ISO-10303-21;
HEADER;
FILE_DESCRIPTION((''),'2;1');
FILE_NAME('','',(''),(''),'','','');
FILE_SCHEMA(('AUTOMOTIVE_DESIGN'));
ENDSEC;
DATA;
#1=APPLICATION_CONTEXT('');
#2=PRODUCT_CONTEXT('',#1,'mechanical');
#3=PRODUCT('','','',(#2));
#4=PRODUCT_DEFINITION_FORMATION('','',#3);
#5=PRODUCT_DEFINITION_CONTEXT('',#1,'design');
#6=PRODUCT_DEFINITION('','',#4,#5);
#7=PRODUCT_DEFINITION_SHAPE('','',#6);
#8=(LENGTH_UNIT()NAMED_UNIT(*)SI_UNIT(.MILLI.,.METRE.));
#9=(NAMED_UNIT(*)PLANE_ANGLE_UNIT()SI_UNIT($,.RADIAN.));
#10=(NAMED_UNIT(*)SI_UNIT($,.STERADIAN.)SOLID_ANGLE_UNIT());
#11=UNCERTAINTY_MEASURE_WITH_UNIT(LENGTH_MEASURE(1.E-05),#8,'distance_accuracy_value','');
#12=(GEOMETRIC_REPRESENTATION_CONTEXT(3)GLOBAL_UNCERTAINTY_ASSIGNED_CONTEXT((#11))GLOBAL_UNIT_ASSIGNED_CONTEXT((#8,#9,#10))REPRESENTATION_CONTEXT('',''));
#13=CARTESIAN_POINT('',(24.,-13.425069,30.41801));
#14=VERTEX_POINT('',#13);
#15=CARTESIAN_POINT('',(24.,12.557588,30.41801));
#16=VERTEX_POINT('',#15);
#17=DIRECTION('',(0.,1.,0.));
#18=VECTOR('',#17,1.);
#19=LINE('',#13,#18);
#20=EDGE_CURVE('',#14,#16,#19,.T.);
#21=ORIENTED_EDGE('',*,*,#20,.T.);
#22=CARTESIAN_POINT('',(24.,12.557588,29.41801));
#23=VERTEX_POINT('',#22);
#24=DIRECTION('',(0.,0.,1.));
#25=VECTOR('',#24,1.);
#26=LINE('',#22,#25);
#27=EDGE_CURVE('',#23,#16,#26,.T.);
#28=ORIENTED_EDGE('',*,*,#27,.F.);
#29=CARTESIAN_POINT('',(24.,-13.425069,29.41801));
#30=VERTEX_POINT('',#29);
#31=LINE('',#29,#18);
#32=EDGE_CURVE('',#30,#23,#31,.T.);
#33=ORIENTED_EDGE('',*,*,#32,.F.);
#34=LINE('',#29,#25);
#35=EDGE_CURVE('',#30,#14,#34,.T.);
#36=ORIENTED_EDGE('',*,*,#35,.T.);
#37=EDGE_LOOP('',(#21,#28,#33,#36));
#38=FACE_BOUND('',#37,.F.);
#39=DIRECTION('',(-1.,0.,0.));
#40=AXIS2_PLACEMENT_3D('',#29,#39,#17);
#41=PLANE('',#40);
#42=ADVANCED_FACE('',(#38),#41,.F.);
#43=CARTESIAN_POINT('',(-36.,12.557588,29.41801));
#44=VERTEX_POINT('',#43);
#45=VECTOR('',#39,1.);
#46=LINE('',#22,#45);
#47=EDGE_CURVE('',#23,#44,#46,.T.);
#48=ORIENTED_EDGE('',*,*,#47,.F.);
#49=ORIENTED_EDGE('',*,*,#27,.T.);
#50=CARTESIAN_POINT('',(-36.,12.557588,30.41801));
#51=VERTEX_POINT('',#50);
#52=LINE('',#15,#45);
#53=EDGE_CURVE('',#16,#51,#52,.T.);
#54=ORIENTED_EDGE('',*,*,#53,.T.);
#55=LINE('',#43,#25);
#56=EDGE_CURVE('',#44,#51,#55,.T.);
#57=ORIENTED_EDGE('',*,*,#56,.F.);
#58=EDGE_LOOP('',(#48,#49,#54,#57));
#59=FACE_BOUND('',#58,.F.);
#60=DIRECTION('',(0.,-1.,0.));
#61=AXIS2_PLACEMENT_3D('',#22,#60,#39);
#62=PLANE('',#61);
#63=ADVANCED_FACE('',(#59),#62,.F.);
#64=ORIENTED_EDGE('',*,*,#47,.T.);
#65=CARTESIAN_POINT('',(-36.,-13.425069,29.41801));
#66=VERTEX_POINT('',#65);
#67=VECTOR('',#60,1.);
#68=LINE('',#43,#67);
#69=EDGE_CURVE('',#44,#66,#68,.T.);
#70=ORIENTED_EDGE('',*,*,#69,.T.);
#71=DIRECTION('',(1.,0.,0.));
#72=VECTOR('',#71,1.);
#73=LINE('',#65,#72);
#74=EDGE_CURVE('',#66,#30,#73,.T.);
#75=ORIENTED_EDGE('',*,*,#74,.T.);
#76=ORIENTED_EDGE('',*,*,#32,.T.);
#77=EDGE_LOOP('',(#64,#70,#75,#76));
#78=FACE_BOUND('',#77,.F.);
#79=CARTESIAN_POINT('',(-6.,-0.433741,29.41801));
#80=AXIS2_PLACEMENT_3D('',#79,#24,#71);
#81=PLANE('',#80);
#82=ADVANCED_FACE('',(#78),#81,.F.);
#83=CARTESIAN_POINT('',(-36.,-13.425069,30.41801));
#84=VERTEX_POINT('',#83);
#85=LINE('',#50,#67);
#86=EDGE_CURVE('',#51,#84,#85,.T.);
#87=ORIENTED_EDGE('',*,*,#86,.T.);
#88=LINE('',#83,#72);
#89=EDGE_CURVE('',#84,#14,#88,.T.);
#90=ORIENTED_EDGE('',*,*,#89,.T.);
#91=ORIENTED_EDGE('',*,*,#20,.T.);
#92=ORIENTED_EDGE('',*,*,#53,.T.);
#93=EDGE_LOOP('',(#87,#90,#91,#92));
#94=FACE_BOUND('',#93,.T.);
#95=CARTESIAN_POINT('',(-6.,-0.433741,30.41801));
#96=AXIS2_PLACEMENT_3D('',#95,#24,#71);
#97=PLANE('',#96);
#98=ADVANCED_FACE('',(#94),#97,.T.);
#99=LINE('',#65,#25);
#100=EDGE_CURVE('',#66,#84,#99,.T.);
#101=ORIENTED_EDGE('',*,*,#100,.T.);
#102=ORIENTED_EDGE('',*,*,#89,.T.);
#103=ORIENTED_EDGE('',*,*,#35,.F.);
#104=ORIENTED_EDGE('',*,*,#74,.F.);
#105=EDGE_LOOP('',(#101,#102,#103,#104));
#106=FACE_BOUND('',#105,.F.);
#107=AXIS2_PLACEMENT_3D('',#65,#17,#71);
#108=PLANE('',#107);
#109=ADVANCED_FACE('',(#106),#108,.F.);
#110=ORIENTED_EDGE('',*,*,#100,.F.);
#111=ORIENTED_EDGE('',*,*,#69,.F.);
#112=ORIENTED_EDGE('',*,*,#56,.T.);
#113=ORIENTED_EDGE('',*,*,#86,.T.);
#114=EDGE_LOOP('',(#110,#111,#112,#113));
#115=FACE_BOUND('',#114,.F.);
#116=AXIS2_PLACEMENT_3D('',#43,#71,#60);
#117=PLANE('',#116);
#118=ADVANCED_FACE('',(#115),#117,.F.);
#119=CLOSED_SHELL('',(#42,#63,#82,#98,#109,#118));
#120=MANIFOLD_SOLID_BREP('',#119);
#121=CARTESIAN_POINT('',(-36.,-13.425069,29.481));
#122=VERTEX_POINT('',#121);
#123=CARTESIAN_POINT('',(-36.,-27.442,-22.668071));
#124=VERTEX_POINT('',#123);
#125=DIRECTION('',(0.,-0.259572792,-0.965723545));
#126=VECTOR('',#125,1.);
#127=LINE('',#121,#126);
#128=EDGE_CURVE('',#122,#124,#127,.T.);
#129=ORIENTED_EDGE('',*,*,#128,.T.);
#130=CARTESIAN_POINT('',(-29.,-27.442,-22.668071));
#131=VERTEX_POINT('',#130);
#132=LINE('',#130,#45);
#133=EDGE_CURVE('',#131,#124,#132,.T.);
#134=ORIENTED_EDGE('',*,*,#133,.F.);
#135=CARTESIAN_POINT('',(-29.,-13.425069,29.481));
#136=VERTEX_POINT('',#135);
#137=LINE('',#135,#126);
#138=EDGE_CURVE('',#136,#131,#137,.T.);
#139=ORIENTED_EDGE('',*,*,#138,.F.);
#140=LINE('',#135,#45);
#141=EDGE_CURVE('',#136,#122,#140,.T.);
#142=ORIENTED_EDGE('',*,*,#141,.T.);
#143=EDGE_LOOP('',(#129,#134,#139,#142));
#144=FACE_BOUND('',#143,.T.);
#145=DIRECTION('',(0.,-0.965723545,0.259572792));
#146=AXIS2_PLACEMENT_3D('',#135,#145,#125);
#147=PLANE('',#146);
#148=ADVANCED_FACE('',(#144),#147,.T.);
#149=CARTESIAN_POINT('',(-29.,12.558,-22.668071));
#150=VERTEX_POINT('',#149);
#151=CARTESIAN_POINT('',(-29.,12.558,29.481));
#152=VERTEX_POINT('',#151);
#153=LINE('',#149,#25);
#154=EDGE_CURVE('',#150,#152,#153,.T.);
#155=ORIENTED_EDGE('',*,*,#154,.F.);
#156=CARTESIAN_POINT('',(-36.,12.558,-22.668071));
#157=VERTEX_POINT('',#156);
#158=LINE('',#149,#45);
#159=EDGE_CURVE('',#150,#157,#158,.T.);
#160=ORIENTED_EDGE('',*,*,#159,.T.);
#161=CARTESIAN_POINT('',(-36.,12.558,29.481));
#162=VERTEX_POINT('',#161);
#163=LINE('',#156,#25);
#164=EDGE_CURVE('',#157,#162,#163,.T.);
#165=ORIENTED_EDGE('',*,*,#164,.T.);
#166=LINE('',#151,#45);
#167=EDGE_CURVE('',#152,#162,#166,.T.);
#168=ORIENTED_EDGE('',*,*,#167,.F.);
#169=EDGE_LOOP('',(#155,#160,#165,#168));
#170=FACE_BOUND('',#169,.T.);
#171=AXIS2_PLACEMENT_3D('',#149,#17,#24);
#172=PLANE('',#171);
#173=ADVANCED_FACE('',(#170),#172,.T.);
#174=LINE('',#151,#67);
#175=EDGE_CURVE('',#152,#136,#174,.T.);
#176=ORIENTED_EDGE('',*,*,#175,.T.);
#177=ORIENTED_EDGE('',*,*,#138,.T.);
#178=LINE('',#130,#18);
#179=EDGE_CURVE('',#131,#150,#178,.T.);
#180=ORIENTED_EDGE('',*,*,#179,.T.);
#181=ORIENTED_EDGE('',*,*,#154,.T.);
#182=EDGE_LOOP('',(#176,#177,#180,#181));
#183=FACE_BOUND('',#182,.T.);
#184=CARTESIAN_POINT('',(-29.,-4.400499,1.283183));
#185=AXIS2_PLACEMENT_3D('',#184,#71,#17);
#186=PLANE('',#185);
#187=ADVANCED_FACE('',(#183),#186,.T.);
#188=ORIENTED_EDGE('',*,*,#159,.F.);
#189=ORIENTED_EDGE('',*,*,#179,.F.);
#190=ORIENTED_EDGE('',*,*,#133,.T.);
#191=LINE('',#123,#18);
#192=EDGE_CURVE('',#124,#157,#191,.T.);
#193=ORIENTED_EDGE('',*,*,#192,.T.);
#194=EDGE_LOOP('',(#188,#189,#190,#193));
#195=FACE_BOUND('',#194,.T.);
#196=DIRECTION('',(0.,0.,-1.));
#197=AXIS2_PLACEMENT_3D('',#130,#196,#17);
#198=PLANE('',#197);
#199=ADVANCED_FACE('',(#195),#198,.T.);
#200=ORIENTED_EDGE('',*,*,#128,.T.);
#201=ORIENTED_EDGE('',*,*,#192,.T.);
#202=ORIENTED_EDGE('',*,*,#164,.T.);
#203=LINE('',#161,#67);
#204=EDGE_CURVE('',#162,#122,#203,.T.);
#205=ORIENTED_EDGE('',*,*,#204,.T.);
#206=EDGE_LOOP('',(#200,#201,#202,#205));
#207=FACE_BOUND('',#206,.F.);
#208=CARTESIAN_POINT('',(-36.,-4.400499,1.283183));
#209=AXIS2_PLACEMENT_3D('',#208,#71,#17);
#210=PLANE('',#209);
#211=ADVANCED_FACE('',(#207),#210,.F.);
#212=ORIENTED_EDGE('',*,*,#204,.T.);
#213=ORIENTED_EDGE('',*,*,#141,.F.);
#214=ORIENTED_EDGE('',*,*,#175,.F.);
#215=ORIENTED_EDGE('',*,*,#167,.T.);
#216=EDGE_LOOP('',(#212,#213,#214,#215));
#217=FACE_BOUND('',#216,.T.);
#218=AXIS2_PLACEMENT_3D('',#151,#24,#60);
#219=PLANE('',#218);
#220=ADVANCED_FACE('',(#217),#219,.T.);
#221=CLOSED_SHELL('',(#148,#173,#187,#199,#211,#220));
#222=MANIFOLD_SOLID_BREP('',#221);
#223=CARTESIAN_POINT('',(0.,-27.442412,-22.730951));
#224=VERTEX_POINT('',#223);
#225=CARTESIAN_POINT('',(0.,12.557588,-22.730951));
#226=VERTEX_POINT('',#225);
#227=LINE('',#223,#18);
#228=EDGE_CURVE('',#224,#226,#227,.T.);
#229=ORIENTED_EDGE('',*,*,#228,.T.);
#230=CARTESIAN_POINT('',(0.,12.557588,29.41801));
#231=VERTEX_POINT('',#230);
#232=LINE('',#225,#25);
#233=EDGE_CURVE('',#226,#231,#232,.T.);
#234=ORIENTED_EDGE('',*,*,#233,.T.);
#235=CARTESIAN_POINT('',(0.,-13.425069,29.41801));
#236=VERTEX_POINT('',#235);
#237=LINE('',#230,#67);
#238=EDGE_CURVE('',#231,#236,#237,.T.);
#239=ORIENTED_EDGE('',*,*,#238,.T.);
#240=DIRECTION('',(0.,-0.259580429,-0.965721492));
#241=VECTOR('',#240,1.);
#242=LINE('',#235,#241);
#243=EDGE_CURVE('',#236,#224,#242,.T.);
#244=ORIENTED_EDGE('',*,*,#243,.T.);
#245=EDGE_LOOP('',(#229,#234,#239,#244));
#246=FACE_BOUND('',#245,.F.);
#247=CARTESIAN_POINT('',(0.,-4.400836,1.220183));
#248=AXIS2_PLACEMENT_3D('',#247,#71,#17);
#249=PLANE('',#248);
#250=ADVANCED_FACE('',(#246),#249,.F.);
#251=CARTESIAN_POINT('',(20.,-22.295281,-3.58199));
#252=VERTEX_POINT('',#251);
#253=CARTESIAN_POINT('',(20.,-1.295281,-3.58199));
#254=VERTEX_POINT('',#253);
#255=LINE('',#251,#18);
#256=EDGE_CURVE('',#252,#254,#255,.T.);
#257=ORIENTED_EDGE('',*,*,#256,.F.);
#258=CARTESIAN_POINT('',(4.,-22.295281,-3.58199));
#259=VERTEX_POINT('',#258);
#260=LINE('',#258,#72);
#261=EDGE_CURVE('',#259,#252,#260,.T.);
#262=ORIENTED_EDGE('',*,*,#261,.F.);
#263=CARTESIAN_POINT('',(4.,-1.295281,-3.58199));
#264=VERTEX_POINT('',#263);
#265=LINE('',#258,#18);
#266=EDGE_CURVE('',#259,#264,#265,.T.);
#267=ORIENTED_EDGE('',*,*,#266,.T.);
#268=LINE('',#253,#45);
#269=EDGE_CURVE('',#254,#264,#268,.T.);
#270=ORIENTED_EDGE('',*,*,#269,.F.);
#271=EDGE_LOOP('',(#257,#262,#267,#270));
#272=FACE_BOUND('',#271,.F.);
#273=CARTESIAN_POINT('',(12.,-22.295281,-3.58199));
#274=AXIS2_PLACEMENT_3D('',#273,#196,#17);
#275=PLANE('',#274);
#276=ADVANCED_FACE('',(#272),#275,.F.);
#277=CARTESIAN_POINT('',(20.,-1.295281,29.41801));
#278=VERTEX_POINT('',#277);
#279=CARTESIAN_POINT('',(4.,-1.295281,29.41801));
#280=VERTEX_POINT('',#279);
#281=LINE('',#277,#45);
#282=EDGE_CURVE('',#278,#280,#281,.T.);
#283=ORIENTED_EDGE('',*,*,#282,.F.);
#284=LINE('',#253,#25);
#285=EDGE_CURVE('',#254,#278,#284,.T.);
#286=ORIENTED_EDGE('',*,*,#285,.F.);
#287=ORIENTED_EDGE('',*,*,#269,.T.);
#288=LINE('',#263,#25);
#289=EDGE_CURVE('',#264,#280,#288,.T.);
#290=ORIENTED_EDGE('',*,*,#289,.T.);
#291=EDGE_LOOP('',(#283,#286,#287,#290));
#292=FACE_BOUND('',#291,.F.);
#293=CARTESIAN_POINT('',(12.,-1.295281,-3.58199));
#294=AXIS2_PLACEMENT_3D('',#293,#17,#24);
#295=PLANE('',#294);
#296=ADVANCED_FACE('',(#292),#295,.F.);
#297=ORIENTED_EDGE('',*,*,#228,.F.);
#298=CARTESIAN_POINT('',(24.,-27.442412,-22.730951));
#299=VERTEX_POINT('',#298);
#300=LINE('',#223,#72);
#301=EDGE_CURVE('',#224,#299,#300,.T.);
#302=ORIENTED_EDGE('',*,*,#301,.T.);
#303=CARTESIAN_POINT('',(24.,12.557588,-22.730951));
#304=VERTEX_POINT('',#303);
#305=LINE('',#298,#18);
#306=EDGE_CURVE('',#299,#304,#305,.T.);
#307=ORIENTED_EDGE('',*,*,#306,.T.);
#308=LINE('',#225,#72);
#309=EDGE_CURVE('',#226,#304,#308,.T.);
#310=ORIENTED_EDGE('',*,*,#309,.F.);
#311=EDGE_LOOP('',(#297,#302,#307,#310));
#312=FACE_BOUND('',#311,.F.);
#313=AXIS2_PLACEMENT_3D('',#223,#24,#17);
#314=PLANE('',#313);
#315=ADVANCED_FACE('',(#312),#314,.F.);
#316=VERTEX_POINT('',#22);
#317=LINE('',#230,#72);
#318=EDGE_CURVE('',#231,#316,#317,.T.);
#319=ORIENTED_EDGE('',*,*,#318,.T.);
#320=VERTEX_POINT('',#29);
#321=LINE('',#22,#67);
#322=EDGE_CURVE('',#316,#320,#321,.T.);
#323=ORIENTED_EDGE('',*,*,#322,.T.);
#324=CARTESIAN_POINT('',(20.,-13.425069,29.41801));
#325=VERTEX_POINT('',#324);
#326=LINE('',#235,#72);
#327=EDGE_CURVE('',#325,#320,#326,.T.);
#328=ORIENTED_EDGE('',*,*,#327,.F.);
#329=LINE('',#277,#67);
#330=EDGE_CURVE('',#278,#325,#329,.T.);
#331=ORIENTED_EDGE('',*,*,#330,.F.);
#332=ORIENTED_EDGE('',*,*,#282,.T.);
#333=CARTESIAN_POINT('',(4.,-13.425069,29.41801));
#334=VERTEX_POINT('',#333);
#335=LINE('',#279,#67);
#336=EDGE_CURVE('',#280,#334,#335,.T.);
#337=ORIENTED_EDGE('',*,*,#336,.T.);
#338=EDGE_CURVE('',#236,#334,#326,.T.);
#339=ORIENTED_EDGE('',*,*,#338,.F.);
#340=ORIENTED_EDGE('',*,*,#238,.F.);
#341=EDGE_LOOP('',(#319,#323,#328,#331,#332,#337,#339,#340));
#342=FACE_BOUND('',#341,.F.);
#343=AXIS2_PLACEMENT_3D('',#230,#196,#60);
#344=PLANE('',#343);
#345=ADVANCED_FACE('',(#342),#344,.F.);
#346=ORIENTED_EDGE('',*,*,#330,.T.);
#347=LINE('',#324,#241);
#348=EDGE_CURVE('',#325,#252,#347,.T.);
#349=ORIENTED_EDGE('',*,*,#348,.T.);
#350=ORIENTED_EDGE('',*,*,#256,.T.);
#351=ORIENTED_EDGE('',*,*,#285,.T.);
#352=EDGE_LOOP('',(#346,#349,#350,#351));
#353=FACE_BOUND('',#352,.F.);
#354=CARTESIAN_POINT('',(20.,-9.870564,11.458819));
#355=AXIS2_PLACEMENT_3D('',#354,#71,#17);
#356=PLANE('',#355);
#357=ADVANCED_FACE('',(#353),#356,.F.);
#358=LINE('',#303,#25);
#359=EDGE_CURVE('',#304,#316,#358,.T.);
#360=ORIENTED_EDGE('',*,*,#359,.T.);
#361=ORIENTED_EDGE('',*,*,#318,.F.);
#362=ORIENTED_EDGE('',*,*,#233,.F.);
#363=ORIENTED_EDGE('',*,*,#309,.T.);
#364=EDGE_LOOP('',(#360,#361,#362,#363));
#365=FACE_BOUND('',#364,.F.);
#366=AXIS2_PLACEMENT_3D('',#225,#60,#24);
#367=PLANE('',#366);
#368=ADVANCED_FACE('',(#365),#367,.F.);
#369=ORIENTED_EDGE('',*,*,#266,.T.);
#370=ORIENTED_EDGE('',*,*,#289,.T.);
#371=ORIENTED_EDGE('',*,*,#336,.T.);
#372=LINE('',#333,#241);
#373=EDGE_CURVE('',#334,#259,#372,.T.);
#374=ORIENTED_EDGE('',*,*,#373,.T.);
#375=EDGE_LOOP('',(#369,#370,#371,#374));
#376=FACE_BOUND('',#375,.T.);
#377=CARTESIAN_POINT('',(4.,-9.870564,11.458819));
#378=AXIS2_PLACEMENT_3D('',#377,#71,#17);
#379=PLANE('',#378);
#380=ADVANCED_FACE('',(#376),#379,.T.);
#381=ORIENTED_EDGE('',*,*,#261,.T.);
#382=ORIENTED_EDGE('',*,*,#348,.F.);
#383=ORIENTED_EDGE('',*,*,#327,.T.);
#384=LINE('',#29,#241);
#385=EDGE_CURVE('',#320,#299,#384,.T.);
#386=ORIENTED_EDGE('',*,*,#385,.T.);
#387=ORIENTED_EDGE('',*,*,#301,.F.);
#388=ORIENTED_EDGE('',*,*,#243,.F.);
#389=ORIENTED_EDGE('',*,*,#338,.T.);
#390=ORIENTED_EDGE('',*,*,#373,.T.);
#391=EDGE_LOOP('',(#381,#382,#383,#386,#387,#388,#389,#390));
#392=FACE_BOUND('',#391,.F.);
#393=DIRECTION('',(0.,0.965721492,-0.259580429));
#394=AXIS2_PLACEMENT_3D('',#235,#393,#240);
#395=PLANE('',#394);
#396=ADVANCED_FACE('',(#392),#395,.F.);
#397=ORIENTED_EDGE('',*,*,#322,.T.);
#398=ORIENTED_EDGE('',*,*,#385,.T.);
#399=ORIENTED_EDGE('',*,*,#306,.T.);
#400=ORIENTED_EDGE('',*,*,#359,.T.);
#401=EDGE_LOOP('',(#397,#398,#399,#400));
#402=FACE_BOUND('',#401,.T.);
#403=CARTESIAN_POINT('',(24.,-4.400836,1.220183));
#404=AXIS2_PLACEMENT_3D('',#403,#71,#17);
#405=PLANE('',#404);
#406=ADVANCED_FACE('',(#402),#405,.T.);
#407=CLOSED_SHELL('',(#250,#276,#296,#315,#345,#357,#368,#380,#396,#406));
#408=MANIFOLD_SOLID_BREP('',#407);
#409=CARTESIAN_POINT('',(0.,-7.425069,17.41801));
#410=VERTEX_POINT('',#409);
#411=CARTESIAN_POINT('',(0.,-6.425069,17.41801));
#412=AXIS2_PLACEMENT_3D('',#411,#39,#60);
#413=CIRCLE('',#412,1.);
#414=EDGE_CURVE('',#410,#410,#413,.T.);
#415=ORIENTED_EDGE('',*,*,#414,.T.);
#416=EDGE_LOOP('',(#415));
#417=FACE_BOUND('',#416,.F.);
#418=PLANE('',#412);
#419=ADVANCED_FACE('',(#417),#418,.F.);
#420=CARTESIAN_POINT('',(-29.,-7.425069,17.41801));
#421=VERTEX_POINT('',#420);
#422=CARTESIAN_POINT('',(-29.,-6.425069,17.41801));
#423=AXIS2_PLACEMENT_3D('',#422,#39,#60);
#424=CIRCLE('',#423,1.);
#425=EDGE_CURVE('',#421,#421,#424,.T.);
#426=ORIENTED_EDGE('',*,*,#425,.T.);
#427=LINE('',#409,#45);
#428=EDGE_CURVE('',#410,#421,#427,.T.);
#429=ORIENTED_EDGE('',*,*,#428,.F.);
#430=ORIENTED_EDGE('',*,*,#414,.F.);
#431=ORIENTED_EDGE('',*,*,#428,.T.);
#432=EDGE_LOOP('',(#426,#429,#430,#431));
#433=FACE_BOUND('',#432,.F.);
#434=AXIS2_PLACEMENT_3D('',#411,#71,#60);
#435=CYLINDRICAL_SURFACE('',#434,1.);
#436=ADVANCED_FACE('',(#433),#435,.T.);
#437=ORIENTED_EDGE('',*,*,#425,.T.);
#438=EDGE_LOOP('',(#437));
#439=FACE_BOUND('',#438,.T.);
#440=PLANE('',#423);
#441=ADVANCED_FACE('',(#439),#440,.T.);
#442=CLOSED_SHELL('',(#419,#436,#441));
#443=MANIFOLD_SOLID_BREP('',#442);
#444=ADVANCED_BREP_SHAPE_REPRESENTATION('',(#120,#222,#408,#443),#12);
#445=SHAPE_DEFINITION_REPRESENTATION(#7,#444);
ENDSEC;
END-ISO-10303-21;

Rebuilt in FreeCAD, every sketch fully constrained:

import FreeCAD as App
import Part
import Sketcher


def add_polygon(sketch, points):
    """Adds a closed chain of lines whose ends are joined by coincident constraints."""
    first, n = sketch.GeometryCount, len(points)
    for a, b in zip(points, points[1:] + points[:1]):
        sketch.addGeometry(Part.LineSegment(App.Vector(*a, 0), App.Vector(*b, 0)), False)
    for i in range(n):
        sketch.addConstraint(Sketcher.Constraint("Coincident", first + i, 2, first + (i + 1) % n, 1))

doc = App.newDocument("Part")
body = doc.addObject("PartDesign::Body", "Body")

# Sketch on YZ plane
sketch1 = body.newObject("Sketcher::SketchObject", "Sketch")
sketch1.AttachmentSupport = (doc.getObject("YZ_Plane"), [""])
sketch1.MapMode = "FlatFace"
add_polygon(sketch1, [(12.557588, -22.730951), (12.557588, 29.41801), (-13.425069, 29.41801), (-27.442412, -22.730951)])  # lines 0-3
sketch1.addConstraint([
    Sketcher.Constraint("Vertical", 0),
    Sketcher.Constraint("Horizontal", 1),
    Sketcher.Constraint("Horizontal", 3),
    Sketcher.Constraint("DistanceX", 3, 1, 3, 2, 40.0),
    Sketcher.Constraint("Distance", 2, 54.0),
    Sketcher.Constraint("DistanceY", 0, 1, 0, 2, 52.148961),
    Sketcher.Constraint("DistanceY", -1, 1, 0, 2, 29.41801),
    Sketcher.Constraint("DistanceX", 1, 2, -1, 1, 13.425069),
])
pad1 = body.newObject("PartDesign::Pad", "Pad")
pad1.Profile = sketch1
pad1.Length = 24

# Sketch on YZ plane
sketch2 = body.newObject("Sketcher::SketchObject", "Sketch001")
sketch2.AttachmentSupport = (doc.getObject("YZ_Plane"), [""])
sketch2.MapMode = "FlatFace"
sketch2.AttachmentOffset = App.Placement(App.Vector(0, 0, 12), App.Rotation())
add_polygon(sketch2, [(-1.295281, 29.41801), (-13.425069, 29.41801), (-22.295281, -3.58199), (-1.295281, -3.58199)])  # lines 0-3
sketch2.addConstraint([
    Sketcher.Constraint("Horizontal", 0),
    Sketcher.Constraint("Horizontal", 2),
    Sketcher.Constraint("Vertical", 3),
    Sketcher.Constraint("DistanceX", 2, 1, 2, 2, 21.0),
    Sketcher.Constraint("DistanceY", 3, 1, 3, 2, 33.0),
    Sketcher.Constraint("DistanceX", 0, 2, 0, 1, 12.129788),
    Sketcher.Constraint("DistanceX", 0, 2, -1, 1, 13.425069),
    Sketcher.Constraint("DistanceY", -1, 1, 0, 2, 29.41801),
])
pocket1 = body.newObject("PartDesign::Pocket", "Pocket")
pocket1.Profile = sketch2
pocket1.Length = 16
pocket1.Midplane = True
body2 = doc.addObject("PartDesign::Body", "Body001")

# Sketch on YZ plane
sketch3 = body2.newObject("Sketcher::SketchObject", "Sketch002")
sketch3.AttachmentSupport = (doc.getObject("YZ_Plane001"), [""])
sketch3.MapMode = "FlatFace"
sketch3.AttachmentOffset = App.Placement(App.Vector(0, 0, -29), App.Rotation())
add_polygon(sketch3, [(12.558, -22.668071), (12.558, 29.481), (-13.425069, 29.481), (-27.442, -22.668071)])  # lines 0-3
sketch3.addConstraint([
    Sketcher.Constraint("Vertical", 0),
    Sketcher.Constraint("Horizontal", 1),
    Sketcher.Constraint("Horizontal", 3),
    Sketcher.Constraint("DistanceX", 3, 1, 3, 2, 40.0),
    Sketcher.Constraint("Distance", 2, 54.0),
    Sketcher.Constraint("DistanceX", -1, 1, 0, 2, 12.558),
    Sketcher.Constraint("DistanceY", -1, 1, 0, 2, 29.481),
    Sketcher.Constraint("DistanceX", 1, 2, 1, 1, 25.983069),
])
pad2 = body2.newObject("PartDesign::Pad", "Pad001")
pad2.Profile = sketch3
pad2.Length = 7
pad2.Reversed = True
body3 = doc.addObject("PartDesign::Body", "Body002")

# Sketch on YZ plane
sketch4 = body3.newObject("Sketcher::SketchObject", "Sketch003")
sketch4.AttachmentSupport = (doc.getObject("YZ_Plane002"), [""])
sketch4.MapMode = "FlatFace"
sketch4.addGeometry(Part.Circle(App.Vector(-6.425069, 17.41801, 0), App.Vector(0, 0, 1), 1), False)
sketch4.addConstraint([
    Sketcher.Constraint("Diameter", 0, 2.0),
    Sketcher.Constraint("DistanceX", 0, 3, -1, 1, 6.425069),
    Sketcher.Constraint("DistanceY", -1, 1, 0, 3, 17.41801),
])
pad3 = body3.newObject("PartDesign::Pad", "Pad002")
pad3.Profile = sketch4
pad3.Length = 29
pad3.Reversed = True
body4 = doc.addObject("PartDesign::Body", "Body003")

# Sketch on XY plane
sketch5 = body4.newObject("Sketcher::SketchObject", "Sketch004")
sketch5.AttachmentSupport = (doc.getObject("XY_Plane003"), [""])
sketch5.MapMode = "FlatFace"
sketch5.AttachmentOffset = App.Placement(App.Vector(0, 0, 29.41801), App.Rotation())
add_polygon(sketch5, [(-36, 12.557588), (-36, -13.425069), (24, -13.425069), (24, 12.557588)])  # lines 0-3
sketch5.addConstraint([
    Sketcher.Constraint("Vertical", 0),
    Sketcher.Constraint("Horizontal", 1),
    Sketcher.Constraint("Vertical", 2),
    Sketcher.Constraint("Horizontal", 3),
    Sketcher.Constraint("DistanceX", 1, 1, 1, 2, 60.0),
    Sketcher.Constraint("DistanceX", 0, 2, -1, 1, 36.0),
    Sketcher.Constraint("DistanceY", 0, 2, 0, 1, 25.982657),
    Sketcher.Constraint("DistanceY", 0, 2, -1, 1, 13.425069),
])
pad4 = body4.newObject("PartDesign::Pad", "Pad003")
pad4.Profile = sketch5
pad4.Length = 1

doc.recompute()
